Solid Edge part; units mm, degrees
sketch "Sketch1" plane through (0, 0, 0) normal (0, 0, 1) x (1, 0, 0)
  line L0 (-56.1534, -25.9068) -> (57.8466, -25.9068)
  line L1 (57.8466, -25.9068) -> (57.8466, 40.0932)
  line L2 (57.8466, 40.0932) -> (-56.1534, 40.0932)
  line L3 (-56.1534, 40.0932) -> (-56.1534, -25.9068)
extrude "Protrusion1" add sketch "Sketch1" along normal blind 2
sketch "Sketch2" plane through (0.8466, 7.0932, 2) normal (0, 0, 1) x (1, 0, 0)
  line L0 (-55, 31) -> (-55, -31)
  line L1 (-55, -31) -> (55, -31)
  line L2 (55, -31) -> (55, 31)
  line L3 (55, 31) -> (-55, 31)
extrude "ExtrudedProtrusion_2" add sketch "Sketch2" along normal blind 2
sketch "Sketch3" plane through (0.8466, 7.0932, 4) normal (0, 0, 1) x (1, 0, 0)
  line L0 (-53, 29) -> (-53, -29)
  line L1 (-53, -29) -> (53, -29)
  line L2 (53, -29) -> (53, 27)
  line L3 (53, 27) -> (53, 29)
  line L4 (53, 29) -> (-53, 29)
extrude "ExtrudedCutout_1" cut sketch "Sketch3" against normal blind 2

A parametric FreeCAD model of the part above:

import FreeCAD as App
import Part
import Sketcher

V = App.Vector

doc = App.newDocument("Part")
params = doc.addObject("Spreadsheet::Sheet", "Params")
for row, (alias, value) in enumerate([
    ("sketch1_width", "114 mm"),
    ("sketch1_height", "66 mm"),
    ("pad1_length", "2 mm"),
    ("sketch2_width", "110 mm"),
    ("sketch2_height", "62 mm"),
    ("pad2_length", "2 mm"),
    ("sketch3_width", "106 mm"),
    ("sketch3_height", "58 mm"),
    ("pocket1_length", "2 mm"),
], start=1):
    params.set(f"A{row}", alias)
    params.set(f"B{row}", "=" + value)
    params.setAlias(f"B{row}", alias)

body = doc.addObject("PartDesign::Body", "Body")

sketch1 = body.newObject("Sketcher::SketchObject", "Sketch")
sketch1.AttachmentSupport = (doc.getObject("XY_Plane"), [""])
sketch1.MapMode = "FlatFace"
sketch1.addGeometry(Part.LineSegment(V(-56, 40, 0), V(-56, -26, 0)), False)
sketch1.addGeometry(Part.LineSegment(V(-56, -26, 0), V(58, -26, 0)), False)
sketch1.addGeometry(Part.LineSegment(V(58, -26, 0), V(58, 40, 0)), False)
sketch1.addGeometry(Part.LineSegment(V(58, 40, 0), V(-56, 40, 0)), False)
sketch1.addConstraint(Sketcher.Constraint("Coincident", 0, 2, 1, 1))
sketch1.addConstraint(Sketcher.Constraint("Coincident", 1, 2, 2, 1))
sketch1.addConstraint(Sketcher.Constraint("Coincident", 2, 2, 3, 1))
sketch1.addConstraint(Sketcher.Constraint("Coincident", 3, 2, 0, 1))
sketch1.addConstraint(Sketcher.Constraint("Vertical", 0))
sketch1.addConstraint(Sketcher.Constraint("Horizontal", 1))
sketch1.addConstraint(Sketcher.Constraint("Vertical", 2))
sketch1.addConstraint(Sketcher.Constraint("Horizontal", 3))
sketch1.addConstraint(Sketcher.Constraint("DistanceX", 1, 1, 1, 2, 114.0))
sketch1.addConstraint(Sketcher.Constraint("DistanceY", 0, 2, 0, 1, 66.0))
sketch1.addConstraint(Sketcher.Constraint("DistanceX", 0, 2, -1, 1, 56.1534))
sketch1.addConstraint(Sketcher.Constraint("DistanceY", 0, 2, -1, 1, 25.9068))
sketch1.setExpression("Constraints[8]", "Params.sketch1_width")
sketch1.setExpression("Constraints[9]", "Params.sketch1_height")
pad1 = body.newObject("PartDesign::Pad", "Pad")
pad1.Profile = sketch1
pad1.setExpression("Length", "Params.pad1_length")

sketch2 = body.newObject("Sketcher::SketchObject", "Sketch001")
sketch2.AttachmentSupport = (doc.getObject("XY_Plane"), [""])
sketch2.MapMode = "FlatFace"
sketch2.AttachmentOffset = App.Placement(V(0, 0, 2), App.Rotation())
sketch2.addGeometry(Part.LineSegment(V(56, 38, 0), V(-54, 38, 0)), False)
sketch2.addGeometry(Part.LineSegment(V(-54, 38, 0), V(-54, -24, 0)), False)
sketch2.addGeometry(Part.LineSegment(V(-54, -24, 0), V(56, -24, 0)), False)
sketch2.addGeometry(Part.LineSegment(V(56, -24, 0), V(56, 38, 0)), False)
sketch2.addConstraint(Sketcher.Constraint("Coincident", 0, 2, 1, 1))
sketch2.addConstraint(Sketcher.Constraint("Coincident", 1, 2, 2, 1))
sketch2.addConstraint(Sketcher.Constraint("Coincident", 2, 2, 3, 1))
sketch2.addConstraint(Sketcher.Constraint("Coincident", 3, 2, 0, 1))
sketch2.addConstraint(Sketcher.Constraint("Horizontal", 0))
sketch2.addConstraint(Sketcher.Constraint("Vertical", 1))
sketch2.addConstraint(Sketcher.Constraint("Horizontal", 2))
sketch2.addConstraint(Sketcher.Constraint("Vertical", 3))
sketch2.addConstraint(Sketcher.Constraint("DistanceX", 0, 2, 0, 1, 110.0))
sketch2.addConstraint(Sketcher.Constraint("DistanceY", 1, 2, 1, 1, 62.0))
sketch2.addConstraint(Sketcher.Constraint("DistanceX", 0, 2, -1, 1, 54.1534))
sketch2.addConstraint(Sketcher.Constraint("DistanceY", -1, 1, 0, 2, 38.0932))
sketch2.setExpression("Constraints[8]", "Params.sketch2_width")
sketch2.setExpression("Constraints[9]", "Params.sketch2_height")
pad2 = body.newObject("PartDesign::Pad", "Pad001")
pad2.Profile = sketch2
pad2.setExpression("Length", "Params.pad2_length")

sketch3 = body.newObject("Sketcher::SketchObject", "Sketch002")
sketch3.AttachmentSupport = (doc.getObject("XY_Plane"), [""])
sketch3.MapMode = "FlatFace"
sketch3.AttachmentOffset = App.Placement(V(0, 0, 4), App.Rotation())
sketch3.addGeometry(Part.LineSegment(V(54, 36, 0), V(-52, 36, 0)), False)
sketch3.addGeometry(Part.LineSegment(V(-52, 36, 0), V(-52, -22, 0)), False)
sketch3.addGeometry(Part.LineSegment(V(-52, -22, 0), V(54, -22, 0)), False)
sketch3.addGeometry(Part.LineSegment(V(54, -22, 0), V(54, 36, 0)), False)
sketch3.addConstraint(Sketcher.Constraint("Coincident", 0, 2, 1, 1))
sketch3.addConstraint(Sketcher.Constraint("Coincident", 1, 2, 2, 1))
sketch3.addConstraint(Sketcher.Constraint("Coincident", 2, 2, 3, 1))
sketch3.addConstraint(Sketcher.Constraint("Coincident", 3, 2, 0, 1))
sketch3.addConstraint(Sketcher.Constraint("Horizontal", 0))
sketch3.addConstraint(Sketcher.Constraint("Vertical", 1))
sketch3.addConstraint(Sketcher.Constraint("Horizontal", 2))
sketch3.addConstraint(Sketcher.Constraint("Vertical", 3))
sketch3.addConstraint(Sketcher.Constraint("DistanceX", 0, 2, 0, 1, 106.0))
sketch3.addConstraint(Sketcher.Constraint("DistanceY", 1, 2, 1, 1, 58.0))
sketch3.addConstraint(Sketcher.Constraint("DistanceX", 0, 2, -1, 1, 52.1534))
sketch3.addConstraint(Sketcher.Constraint("DistanceY", -1, 1, 0, 2, 36.0932))
sketch3.setExpression("Constraints[8]", "Params.sketch3_width")
sketch3.setExpression("Constraints[9]", "Params.sketch3_height")
pocket1 = body.newObject("PartDesign::Pocket", "Pocket")
pocket1.Profile = sketch3
pocket1.setExpression("Length", "Params.pocket1_length")

doc.recompute()
